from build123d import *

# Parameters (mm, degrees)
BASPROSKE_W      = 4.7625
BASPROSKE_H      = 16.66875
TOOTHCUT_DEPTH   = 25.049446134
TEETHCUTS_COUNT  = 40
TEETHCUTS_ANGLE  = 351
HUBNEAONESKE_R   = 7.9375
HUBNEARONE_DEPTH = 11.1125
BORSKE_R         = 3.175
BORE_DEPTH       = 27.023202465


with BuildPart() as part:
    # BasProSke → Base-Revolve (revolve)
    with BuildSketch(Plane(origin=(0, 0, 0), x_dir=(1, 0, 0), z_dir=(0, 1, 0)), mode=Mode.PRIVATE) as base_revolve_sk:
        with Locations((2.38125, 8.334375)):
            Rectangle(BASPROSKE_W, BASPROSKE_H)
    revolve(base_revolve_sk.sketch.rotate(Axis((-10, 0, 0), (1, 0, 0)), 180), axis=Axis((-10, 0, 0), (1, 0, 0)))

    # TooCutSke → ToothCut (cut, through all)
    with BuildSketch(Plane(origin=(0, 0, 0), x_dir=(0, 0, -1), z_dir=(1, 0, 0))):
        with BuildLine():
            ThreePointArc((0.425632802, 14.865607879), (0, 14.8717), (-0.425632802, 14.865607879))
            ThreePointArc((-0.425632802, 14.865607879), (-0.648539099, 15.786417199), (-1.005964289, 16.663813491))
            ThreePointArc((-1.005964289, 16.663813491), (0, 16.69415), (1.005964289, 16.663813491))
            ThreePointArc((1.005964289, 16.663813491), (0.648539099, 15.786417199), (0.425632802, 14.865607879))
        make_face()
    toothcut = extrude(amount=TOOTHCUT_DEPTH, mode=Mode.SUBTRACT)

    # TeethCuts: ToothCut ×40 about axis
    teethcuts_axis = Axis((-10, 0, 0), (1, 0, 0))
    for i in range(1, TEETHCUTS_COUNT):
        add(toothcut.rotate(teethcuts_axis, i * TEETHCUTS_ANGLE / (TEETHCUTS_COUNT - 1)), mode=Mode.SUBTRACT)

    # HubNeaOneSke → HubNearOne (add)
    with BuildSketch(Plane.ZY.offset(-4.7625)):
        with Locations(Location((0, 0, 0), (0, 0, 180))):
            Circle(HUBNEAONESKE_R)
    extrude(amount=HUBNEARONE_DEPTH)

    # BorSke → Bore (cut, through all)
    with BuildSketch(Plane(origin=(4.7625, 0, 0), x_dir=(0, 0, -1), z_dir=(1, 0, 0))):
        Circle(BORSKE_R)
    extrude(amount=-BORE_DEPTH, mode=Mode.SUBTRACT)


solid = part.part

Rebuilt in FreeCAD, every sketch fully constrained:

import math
import FreeCAD as App
import Part
import Sketcher
Q = App.Units.Quantity


def add_polygon(sketch, points):
    """Adds a closed chain of lines whose ends are joined by coincident constraints."""
    first, n = sketch.GeometryCount, len(points)
    for a, b in zip(points, points[1:] + points[:1]):
        sketch.addGeometry(Part.LineSegment(App.Vector(*a, 0), App.Vector(*b, 0)), False)
    for i in range(n):
        sketch.addConstraint(Sketcher.Constraint("Coincident", first + i, 2, first + (i + 1) % n, 1))

doc = App.newDocument("Part")
body = doc.addObject("PartDesign::Body", "Body")

sketch1 = body.newObject("Sketcher::SketchObject", "Sketch")
sketch1.AttachmentSupport = (doc.getObject("XZ_Plane"), [""])
sketch1.MapMode = "FlatFace"
add_polygon(sketch1, [(0, -16.7), (0, 0), (4.8, 0), (4.8, -16.7)])
sketch1.addConstraint([
    Sketcher.Constraint("Vertical", 0),
    Sketcher.Constraint("Horizontal", 1),
    Sketcher.Constraint("Vertical", 2),
    Sketcher.Constraint("Horizontal", 3),
    Sketcher.Constraint("Coincident", 0, 2, -1, 1),
    Sketcher.Constraint("DistanceX", 1, 1, 1, 2, Q("0.1875 in")),
    Sketcher.Constraint("DistanceY", 0, 1, 0, 2, Q("0.65625 in")),
])
revolution = body.newObject("PartDesign::Revolution", "Revolution")
revolution.Profile = sketch1
revolution.ReferenceAxis = (sketch1, ["H_Axis"])
revolution.Angle = 360

sketch2 = body.newObject("Sketcher::SketchObject", "Sketch001")
sketch2.AttachmentSupport = (doc.getObject("YZ_Plane"), [""])
sketch2.MapMode = "FlatFace"
sketch2.addGeometry([
    Part.ArcOfCircle(Part.Circle(App.Vector(0, 0, 0), App.Vector(0, 0, 1), 14.9), math.radians(-1.64), math.radians(1.64)),
    Part.ArcOfCircle(Part.Circle(App.Vector(13.8, -6.7, 0), App.Vector(0, 0, 1), 6.4), math.radians(63.56), math.radians(80.67)),
    Part.ArcOfCircle(Part.Circle(App.Vector(0, 0, 0), App.Vector(0, 0, 1), 16.7), math.radians(-3.45), math.radians(3.45)),
    Part.ArcOfCircle(Part.Circle(App.Vector(13.8, 6.7, 0), App.Vector(0, 0, 1), 6.4), math.radians(-80.67), math.radians(-63.56)),
], False)
sketch2.addConstraint([
    Sketcher.Constraint("Coincident", 0, 1, 1, 2),
    Sketcher.Constraint("Coincident", 1, 1, 2, 1),
    Sketcher.Constraint("Coincident", 2, 2, 3, 2),
    Sketcher.Constraint("Coincident", 3, 1, 0, 2),
    Sketcher.Constraint("Coincident", 0, 3, -1, 1),
    Sketcher.Constraint("Coincident", 2, 3, -1, 1),
    Sketcher.Constraint("Equal", 1, 3),
    Sketcher.Constraint("Symmetric", 1, 3, 3, 3, -1),
    Sketcher.Constraint("Radius", 1, Q("0.25 in")),
    Sketcher.Constraint("Radius", 0, Q("0.5855 in")),
    Sketcher.Constraint("Radius", 2, 16.69415),
    Sketcher.Constraint("DistanceY", 1, 3, 3, 3, Q("0.5268999 in")),
    Sketcher.Constraint("DistanceY", 0, 1, 3, 3, 7.117261),
])
pocket1 = body.newObject("PartDesign::Pocket", "Pocket")
pocket1.Profile = sketch2
pocket1.Type = "ThroughAll"
pocket1.Reversed = True
doc.recompute()

polarpattern = body.newObject("PartDesign::PolarPattern", "PolarPattern")
polarpattern.Originals = [pocket1]
polarpattern.Axis = (doc.getObject("X_Axis"), [""])
polarpattern.Angle = 360
polarpattern.Occurrences = 40
body.Tip = polarpattern

sketch3 = body.newObject("Sketcher::SketchObject", "Sketch002")
sketch3.AttachmentSupport = (doc.getObject("YZ_Plane"), [""])
sketch3.MapMode = "FlatFace"
sketch3.AttachmentOffset = App.Placement(App.Vector(0, 0, 0.1875 * 25.4), App.Rotation())
sketch3.addGeometry(Part.Circle(App.Vector(0, 0, 0), App.Vector(0, 0, 1), 8), False)
sketch3.addConstraint([
    Sketcher.Constraint("Coincident", 0, 3, -1, 1),
    Sketcher.Constraint("Diameter", 0, Q("0.625 in")),
])
pad1 = body.newObject("PartDesign::Pad", "Pad")
pad1.Profile = sketch3
pad1.Length = Q("0.4375 in")
pad1.Reversed = True

sketch4 = body.newObject("Sketcher::SketchObject", "Sketch003")
sketch4.AttachmentSupport = (doc.getObject("YZ_Plane"), [""])
sketch4.MapMode = "FlatFace"
sketch4.AttachmentOffset = App.Placement(App.Vector(0, 0, 0.1875 * 25.4), App.Rotation())
sketch4.addGeometry(Part.Circle(App.Vector(0, 0, 0), App.Vector(0, 0, 1), 3.2), False)
sketch4.addConstraint([
    Sketcher.Constraint("Coincident", 0, 3, -1, 1),
    Sketcher.Constraint("Diameter", 0, Q("0.25 in")),
])
pocket2 = body.newObject("PartDesign::Pocket", "Pocket001")
pocket2.Profile = sketch4
pocket2.Type = "ThroughAll"

doc.recompute()
